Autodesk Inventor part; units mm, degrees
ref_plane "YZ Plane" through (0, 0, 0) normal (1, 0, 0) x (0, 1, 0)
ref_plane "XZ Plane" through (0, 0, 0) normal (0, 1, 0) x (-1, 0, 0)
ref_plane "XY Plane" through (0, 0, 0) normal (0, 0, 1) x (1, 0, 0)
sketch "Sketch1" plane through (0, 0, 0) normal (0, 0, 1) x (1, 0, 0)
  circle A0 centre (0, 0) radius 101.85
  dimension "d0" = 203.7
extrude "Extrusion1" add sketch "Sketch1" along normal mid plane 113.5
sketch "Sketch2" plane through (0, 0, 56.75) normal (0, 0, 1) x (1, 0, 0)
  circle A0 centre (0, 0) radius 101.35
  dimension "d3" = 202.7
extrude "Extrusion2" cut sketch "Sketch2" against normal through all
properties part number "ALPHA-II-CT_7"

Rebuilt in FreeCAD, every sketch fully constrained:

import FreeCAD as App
import Part
import Sketcher
from FreeCAD import Vector

doc = App.newDocument("Part")
body = doc.addObject("PartDesign::Body", "Body")

sketch1 = doc.addObject("Sketcher::SketchObject", "Sketch")
body.addObject(sketch1)
sketch1.AttachmentSupport = (doc.XY_Plane, [""])
sketch1.MapMode = "FlatFace"
sketch1.addGeometry(Part.Circle(Vector(0, 0, 0), Vector(0, 0, 1), 102), False)
sketch1.addConstraint([
    Sketcher.Constraint("Coincident", 0, 3, -1, 1),
    Sketcher.Constraint("Diameter", 0, 203.7),
])
pad1 = doc.addObject("PartDesign::Pad", "Pad")
body.addObject(pad1)
pad1.Profile = sketch1
pad1.Length = 113.5
pad1.Midplane = True

sketch2 = doc.addObject("Sketcher::SketchObject", "Sketch001")
body.addObject(sketch2)
sketch2.AttachmentSupport = (doc.XY_Plane, [""])
sketch2.MapMode = "FlatFace"
sketch2.AttachmentOffset = App.Placement(Vector(0, 0, 56.75), App.Rotation())
sketch2.addGeometry(Part.Circle(Vector(0, 0, 0), Vector(0, 0, 1), 101), False)
sketch2.addConstraint([
    Sketcher.Constraint("Coincident", 0, 3, -1, 1),
    Sketcher.Constraint("Diameter", 0, 202.7),
])
pocket1 = doc.addObject("PartDesign::Pocket", "Pocket")
body.addObject(pocket1)
pocket1.Profile = sketch2
pocket1.Type = "ThroughAll"

doc.recompute()
